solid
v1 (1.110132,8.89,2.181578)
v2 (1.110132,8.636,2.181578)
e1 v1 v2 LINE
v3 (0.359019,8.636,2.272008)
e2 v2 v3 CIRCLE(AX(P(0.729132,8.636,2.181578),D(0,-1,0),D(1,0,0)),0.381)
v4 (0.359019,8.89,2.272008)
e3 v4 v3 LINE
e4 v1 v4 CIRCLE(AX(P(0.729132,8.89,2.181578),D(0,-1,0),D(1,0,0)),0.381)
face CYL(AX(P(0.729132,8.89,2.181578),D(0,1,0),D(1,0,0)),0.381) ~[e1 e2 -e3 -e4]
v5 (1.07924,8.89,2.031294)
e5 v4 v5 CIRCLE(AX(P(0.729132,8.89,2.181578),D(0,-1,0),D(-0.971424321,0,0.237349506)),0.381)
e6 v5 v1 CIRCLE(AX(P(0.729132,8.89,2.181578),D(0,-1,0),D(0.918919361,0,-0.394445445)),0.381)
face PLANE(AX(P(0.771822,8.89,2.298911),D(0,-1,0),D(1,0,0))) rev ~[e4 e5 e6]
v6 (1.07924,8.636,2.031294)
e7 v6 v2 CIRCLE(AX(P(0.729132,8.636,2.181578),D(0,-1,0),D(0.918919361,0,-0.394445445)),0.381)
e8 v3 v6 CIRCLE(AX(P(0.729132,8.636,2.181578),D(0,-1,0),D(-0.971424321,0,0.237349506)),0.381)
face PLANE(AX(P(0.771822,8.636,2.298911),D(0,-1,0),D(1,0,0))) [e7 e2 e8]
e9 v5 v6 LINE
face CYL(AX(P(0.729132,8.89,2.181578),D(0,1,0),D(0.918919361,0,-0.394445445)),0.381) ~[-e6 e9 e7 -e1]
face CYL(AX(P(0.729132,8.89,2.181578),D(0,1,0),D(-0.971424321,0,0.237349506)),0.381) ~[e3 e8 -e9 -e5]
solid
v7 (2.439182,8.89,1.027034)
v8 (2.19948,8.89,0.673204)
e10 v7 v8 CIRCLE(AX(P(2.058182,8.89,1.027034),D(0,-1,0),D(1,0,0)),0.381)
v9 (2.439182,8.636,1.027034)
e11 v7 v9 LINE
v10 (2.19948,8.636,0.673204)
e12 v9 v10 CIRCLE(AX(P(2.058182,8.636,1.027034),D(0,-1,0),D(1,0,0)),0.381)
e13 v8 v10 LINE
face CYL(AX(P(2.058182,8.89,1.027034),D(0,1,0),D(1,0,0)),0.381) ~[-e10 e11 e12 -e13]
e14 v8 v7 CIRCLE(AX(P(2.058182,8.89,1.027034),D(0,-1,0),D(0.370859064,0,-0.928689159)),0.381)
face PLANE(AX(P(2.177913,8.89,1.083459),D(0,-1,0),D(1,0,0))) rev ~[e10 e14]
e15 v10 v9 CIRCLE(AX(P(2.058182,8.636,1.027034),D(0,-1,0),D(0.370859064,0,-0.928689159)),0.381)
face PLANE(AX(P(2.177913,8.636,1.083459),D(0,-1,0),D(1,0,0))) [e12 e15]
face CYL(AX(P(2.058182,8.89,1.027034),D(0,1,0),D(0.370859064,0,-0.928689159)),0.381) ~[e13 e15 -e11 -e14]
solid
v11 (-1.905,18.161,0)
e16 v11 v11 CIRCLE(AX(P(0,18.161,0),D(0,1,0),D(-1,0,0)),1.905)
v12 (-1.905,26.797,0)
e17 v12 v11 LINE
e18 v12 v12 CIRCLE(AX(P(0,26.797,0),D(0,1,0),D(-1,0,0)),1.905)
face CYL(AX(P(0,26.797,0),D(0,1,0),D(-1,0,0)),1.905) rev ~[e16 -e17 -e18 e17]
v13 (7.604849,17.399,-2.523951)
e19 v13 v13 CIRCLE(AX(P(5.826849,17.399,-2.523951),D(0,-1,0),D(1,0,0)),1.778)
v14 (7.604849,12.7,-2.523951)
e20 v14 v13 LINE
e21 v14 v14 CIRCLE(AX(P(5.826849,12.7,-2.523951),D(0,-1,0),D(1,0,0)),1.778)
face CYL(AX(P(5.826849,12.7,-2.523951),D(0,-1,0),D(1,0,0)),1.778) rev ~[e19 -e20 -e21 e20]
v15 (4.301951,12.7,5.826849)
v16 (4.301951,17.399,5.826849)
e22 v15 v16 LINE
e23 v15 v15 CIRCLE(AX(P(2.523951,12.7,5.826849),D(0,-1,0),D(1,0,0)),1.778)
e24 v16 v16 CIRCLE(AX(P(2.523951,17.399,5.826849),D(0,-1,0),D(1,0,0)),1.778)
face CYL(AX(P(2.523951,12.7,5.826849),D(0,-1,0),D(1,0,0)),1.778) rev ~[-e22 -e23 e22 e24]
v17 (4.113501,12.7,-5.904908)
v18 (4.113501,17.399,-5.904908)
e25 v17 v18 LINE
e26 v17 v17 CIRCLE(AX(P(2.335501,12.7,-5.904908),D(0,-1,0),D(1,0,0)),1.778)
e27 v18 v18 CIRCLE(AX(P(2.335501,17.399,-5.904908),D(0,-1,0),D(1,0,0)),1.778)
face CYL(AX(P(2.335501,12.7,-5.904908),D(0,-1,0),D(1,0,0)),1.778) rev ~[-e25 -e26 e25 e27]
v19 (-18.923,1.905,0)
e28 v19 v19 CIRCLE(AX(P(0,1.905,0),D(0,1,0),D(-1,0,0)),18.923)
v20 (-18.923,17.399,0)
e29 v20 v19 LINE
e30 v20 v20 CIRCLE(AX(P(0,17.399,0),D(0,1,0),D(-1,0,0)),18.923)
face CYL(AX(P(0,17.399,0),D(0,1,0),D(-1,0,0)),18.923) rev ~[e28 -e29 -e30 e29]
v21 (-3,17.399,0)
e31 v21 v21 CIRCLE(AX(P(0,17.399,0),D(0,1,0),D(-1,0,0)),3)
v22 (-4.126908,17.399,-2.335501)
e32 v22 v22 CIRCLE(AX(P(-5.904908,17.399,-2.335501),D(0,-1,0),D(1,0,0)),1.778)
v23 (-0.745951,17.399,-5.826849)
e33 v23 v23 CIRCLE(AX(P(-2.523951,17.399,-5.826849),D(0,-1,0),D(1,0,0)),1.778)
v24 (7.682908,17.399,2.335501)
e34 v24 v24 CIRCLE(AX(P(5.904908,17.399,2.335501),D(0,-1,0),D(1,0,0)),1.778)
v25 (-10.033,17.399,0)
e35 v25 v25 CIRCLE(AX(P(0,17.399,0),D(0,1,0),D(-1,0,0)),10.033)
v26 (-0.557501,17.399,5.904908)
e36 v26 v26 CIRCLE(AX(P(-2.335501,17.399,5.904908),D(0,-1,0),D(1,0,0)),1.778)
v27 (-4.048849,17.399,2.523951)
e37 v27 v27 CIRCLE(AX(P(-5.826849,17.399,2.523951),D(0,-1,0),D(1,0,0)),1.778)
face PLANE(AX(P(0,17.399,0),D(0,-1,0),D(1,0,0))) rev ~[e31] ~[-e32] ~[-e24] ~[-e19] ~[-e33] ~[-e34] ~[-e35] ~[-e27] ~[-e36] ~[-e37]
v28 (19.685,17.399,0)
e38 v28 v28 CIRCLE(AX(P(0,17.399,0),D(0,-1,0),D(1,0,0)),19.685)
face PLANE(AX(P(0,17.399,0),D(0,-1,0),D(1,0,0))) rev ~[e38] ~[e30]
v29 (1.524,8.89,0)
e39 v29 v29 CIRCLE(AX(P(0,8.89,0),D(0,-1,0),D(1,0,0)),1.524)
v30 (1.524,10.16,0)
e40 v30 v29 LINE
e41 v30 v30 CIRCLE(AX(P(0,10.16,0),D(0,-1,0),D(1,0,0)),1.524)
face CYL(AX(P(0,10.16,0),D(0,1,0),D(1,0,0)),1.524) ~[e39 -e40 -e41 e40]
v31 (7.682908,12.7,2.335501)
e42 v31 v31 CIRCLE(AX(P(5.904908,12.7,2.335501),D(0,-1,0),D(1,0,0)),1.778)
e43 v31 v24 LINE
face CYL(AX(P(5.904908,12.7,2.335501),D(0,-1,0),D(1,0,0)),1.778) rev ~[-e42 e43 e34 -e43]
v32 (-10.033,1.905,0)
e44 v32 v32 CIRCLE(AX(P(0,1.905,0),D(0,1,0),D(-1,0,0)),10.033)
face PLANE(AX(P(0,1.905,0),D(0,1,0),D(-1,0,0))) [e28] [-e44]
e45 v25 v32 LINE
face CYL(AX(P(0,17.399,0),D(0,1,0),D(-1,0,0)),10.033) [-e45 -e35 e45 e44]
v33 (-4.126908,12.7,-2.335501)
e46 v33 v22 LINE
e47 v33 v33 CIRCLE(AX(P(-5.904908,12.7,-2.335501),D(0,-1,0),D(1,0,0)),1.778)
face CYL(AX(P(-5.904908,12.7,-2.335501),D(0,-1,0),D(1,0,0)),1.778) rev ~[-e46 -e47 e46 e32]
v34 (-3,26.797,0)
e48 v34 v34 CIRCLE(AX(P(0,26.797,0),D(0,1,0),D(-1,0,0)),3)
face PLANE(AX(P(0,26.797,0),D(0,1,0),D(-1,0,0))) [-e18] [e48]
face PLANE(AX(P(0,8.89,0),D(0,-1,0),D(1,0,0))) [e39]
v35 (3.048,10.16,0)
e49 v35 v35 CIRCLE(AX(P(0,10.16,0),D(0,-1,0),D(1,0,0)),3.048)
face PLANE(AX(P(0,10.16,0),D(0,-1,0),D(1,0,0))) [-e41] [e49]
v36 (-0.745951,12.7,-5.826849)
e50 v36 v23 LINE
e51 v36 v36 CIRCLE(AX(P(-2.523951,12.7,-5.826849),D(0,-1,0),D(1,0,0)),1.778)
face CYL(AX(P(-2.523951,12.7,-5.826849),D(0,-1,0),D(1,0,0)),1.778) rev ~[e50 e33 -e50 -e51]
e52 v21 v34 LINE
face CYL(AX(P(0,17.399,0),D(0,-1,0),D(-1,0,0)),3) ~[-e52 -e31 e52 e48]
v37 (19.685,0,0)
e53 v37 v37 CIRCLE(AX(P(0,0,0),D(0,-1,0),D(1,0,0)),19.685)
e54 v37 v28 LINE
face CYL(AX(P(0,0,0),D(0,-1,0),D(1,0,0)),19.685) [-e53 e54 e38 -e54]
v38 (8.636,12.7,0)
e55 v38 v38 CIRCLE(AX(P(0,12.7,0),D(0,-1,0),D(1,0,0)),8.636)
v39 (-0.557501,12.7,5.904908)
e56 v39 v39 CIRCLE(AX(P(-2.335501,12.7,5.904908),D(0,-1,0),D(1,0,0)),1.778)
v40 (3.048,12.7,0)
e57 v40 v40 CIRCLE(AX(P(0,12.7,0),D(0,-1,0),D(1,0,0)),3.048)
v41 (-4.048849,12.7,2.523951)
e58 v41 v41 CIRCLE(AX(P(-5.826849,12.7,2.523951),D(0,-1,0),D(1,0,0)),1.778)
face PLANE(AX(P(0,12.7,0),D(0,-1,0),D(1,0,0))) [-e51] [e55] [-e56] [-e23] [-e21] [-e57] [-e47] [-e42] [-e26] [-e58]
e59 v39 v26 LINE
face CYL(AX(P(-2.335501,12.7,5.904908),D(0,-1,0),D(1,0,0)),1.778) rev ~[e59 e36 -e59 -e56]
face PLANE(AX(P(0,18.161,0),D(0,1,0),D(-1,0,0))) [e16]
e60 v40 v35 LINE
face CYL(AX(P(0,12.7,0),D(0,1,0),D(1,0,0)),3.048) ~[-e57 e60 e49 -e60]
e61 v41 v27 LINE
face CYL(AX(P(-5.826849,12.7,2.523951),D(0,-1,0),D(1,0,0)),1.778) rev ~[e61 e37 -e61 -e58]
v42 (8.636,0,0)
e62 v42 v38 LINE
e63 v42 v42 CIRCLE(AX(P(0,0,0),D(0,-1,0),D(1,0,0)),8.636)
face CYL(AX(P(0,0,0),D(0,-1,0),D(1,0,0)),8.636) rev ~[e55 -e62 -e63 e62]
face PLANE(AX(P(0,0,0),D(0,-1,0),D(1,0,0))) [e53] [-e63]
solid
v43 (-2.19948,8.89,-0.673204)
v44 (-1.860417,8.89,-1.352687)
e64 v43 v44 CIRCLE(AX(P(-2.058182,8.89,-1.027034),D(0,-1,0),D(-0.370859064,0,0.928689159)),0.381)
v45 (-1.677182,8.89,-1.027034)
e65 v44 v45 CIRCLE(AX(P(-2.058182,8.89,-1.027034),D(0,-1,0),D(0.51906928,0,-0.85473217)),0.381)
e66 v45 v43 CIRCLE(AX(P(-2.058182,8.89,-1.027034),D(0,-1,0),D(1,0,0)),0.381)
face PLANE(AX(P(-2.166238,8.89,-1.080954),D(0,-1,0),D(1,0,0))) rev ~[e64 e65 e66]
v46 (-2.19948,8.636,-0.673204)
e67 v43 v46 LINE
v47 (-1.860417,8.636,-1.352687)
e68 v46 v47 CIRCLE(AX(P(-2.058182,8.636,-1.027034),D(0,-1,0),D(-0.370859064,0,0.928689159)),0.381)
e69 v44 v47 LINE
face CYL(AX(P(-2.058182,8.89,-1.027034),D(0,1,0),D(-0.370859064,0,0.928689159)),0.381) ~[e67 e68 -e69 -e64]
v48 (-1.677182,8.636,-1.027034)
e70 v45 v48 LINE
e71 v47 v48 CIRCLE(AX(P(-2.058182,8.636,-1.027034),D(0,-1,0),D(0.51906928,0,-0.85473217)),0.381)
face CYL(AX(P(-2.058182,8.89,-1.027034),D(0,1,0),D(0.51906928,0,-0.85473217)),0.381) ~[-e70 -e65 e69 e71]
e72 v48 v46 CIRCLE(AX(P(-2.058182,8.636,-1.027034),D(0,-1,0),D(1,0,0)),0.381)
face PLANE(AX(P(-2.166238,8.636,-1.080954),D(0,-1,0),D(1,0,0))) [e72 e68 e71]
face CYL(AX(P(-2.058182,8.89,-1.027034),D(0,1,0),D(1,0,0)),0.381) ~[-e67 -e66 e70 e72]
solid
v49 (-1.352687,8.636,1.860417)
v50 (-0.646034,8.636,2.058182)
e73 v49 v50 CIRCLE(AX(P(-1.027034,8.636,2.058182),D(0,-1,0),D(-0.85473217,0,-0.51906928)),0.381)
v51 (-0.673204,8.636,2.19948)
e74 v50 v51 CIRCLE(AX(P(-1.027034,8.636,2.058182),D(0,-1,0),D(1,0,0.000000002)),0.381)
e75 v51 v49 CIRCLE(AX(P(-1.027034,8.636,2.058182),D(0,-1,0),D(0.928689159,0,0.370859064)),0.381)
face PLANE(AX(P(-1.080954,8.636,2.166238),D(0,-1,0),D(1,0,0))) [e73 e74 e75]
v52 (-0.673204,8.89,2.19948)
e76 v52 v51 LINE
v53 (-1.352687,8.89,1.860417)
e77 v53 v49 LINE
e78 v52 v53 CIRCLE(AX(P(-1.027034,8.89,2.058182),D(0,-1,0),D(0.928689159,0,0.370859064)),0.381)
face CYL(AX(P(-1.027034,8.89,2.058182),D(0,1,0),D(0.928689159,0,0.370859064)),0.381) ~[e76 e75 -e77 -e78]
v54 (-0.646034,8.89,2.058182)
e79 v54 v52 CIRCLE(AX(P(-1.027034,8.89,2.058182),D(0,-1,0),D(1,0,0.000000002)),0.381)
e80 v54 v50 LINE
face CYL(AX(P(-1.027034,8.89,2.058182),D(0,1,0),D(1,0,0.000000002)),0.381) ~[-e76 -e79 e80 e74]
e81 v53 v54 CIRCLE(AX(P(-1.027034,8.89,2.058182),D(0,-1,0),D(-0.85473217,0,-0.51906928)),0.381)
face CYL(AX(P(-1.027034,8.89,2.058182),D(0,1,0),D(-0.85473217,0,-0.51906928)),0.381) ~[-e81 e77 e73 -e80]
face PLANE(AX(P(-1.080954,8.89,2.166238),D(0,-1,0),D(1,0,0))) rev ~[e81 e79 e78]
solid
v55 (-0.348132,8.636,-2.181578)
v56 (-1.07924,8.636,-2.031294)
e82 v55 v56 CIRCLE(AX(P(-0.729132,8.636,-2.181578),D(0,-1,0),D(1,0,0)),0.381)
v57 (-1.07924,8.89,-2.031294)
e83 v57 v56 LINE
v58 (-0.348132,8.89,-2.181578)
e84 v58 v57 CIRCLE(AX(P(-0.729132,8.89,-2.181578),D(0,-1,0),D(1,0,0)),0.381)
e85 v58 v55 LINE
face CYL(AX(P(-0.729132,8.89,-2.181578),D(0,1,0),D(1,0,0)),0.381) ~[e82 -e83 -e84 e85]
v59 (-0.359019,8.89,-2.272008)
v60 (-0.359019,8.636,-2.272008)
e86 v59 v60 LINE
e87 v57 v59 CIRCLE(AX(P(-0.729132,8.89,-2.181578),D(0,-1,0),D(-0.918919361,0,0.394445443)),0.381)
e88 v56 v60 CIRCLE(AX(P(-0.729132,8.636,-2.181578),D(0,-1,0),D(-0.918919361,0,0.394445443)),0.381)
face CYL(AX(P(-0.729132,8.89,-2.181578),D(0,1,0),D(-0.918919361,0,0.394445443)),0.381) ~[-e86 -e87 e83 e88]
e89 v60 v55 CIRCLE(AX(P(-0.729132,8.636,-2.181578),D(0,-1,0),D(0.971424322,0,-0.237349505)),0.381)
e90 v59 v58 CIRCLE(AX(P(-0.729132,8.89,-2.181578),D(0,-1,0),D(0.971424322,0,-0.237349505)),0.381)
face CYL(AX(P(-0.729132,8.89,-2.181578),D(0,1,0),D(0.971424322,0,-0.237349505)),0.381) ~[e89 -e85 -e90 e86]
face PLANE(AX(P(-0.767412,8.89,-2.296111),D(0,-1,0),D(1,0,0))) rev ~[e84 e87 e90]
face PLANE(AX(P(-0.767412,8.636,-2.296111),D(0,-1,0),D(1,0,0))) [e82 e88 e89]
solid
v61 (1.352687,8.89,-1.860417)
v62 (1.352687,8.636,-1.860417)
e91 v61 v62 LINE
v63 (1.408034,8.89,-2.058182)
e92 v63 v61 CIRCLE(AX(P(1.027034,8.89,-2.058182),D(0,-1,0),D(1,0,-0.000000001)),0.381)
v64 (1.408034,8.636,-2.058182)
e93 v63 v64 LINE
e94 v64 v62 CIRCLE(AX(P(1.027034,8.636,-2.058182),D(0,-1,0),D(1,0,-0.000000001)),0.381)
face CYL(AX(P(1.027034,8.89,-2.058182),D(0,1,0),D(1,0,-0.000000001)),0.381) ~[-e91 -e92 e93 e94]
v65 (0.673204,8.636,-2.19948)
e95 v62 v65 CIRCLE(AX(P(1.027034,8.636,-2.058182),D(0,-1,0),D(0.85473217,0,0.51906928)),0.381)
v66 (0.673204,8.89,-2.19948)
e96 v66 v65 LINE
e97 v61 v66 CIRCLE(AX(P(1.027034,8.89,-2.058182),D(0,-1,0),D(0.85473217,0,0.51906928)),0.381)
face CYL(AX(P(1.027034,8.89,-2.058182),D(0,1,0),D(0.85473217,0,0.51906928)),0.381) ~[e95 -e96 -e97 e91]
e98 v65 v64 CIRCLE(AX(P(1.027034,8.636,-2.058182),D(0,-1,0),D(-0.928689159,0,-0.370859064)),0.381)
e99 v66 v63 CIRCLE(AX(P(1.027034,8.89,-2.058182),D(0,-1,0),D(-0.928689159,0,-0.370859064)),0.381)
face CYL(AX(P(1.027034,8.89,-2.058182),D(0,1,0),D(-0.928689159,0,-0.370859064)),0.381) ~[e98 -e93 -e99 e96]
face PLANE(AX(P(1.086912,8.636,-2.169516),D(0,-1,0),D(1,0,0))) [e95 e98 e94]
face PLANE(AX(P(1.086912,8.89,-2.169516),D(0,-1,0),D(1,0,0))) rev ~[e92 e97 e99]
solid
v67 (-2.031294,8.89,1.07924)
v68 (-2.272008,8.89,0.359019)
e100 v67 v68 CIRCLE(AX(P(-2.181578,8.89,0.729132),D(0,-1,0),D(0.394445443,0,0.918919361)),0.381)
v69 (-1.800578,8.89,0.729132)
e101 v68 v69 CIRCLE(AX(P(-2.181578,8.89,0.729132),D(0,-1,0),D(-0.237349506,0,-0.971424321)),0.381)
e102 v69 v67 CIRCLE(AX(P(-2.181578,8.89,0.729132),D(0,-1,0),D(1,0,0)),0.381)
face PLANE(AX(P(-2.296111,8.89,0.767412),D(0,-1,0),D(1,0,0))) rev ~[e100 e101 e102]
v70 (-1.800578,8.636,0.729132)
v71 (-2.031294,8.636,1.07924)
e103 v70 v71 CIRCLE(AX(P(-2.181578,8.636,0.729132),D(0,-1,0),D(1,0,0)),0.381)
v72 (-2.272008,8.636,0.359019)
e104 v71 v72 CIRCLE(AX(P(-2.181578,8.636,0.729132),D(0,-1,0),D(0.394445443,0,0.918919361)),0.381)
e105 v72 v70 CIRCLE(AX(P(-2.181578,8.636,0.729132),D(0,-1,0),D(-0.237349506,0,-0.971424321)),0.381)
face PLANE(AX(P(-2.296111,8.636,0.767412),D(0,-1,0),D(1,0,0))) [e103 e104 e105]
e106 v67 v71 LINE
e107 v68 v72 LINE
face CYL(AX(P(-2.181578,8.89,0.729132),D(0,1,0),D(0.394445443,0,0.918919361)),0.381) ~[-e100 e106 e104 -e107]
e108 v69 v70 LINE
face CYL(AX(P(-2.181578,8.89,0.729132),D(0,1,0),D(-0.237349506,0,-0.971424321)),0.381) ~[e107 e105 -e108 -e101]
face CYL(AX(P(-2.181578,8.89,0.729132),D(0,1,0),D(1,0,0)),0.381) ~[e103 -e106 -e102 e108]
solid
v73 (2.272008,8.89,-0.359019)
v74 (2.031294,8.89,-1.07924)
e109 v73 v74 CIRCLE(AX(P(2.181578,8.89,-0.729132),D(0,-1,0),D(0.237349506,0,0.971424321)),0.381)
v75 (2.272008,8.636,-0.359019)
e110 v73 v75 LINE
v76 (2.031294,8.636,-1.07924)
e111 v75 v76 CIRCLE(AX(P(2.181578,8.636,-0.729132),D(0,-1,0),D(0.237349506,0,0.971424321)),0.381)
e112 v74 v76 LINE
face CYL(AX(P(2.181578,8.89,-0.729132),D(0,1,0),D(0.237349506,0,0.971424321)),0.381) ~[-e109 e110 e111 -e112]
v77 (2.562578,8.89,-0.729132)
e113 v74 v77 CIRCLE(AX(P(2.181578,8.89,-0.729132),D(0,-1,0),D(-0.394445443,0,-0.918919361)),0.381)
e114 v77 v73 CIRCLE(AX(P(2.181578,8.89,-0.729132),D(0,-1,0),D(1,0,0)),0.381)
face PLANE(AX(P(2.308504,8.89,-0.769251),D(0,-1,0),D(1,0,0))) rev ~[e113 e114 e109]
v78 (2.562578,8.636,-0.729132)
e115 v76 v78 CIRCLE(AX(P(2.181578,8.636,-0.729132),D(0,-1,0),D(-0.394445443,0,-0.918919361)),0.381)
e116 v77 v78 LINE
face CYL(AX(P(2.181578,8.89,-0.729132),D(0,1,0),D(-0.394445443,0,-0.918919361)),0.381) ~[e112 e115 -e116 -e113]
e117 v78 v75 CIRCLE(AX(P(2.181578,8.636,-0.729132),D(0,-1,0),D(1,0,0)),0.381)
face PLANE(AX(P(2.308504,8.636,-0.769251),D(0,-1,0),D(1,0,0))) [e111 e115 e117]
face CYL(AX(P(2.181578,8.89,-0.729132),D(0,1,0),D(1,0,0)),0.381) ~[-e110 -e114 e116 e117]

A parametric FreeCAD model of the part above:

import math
import FreeCAD as App
import Part
import Sketcher
from FreeCAD import Vector
Q = App.Units.Quantity

doc = App.newDocument("Part")
body = doc.addObject("PartDesign::Body", "Body")

# Sketch on XZ plane
sketch1 = body.newObject("Sketcher::SketchObject", "Sketch")
sketch1.AttachmentSupport = (doc.getObject("XZ_Plane"), [""])
sketch1.MapMode = "FlatFace"
sketch1.addGeometry(Part.Circle(Vector(0, 0, 0), Vector(0, 0, 1), 19.685), False)
sketch1.addConstraint(Sketcher.Constraint("Coincident", 0, 3, -1, 1))
sketch1.addConstraint(Sketcher.Constraint("Diameter", 0, Q("1.55 in")))
pad1 = body.newObject("PartDesign::Pad", "Pad")
pad1.Profile = sketch1
pad1.Length = Q("0.685 in")
pad1.Reversed = True

# Sketch on XZ plane
sketch2 = body.newObject("Sketcher::SketchObject", "Sketch001")
sketch2.AttachmentSupport = (doc.getObject("XZ_Plane"), [""])
sketch2.MapMode = "FlatFace"
sketch2.addGeometry(Part.Circle(Vector(0, 0, 0), Vector(0, 0, 1), 7.62), False)
sketch2.addConstraint(Sketcher.Constraint("Coincident", 0, 3, -1, 1))
sketch2.addConstraint(Sketcher.Constraint("Diameter", 0, Q("0.6 in")))
pocket1 = body.newObject("PartDesign::Pocket", "Pocket")
pocket1.Profile = sketch2
pocket1.Length = Q("0.52 in")

# Sketch on XZ plane
sketch3 = body.newObject("Sketcher::SketchObject", "Sketch002")
sketch3.AttachmentSupport = (doc.getObject("XZ_Plane"), [""])
sketch3.MapMode = "FlatFace"
sketch3.addGeometry(Part.Circle(Vector(0, 0, 0), Vector(0, 0, 1), 19.685), False)
sketch3.addConstraint(Sketcher.Constraint("Coincident", 0, 3, -1, 1))
sketch3.addConstraint(Sketcher.Constraint("Diameter", 0, Q("1.55 in")))
pad2 = body.newObject("PartDesign::Pad", "Pad001")
pad2.Profile = sketch3
pad2.Length = Q("0.65 in")
pad2.Reversed = True

# Sketch on XZ plane
sketch4 = body.newObject("Sketcher::SketchObject", "Sketch003")
sketch4.AttachmentSupport = (doc.getObject("XZ_Plane"), [""])
sketch4.MapMode = "FlatFace"
sketch4.addGeometry(Part.Circle(Vector(0, 0, 0), Vector(0, 0, 1), 8.636), False)
sketch4.addConstraint(Sketcher.Constraint("Coincident", 0, 3, -1, 1))
sketch4.addConstraint(Sketcher.Constraint("Diameter", 0, Q("0.68 in")))
pocket2 = body.newObject("PartDesign::Pocket", "Pocket001")
pocket2.Profile = sketch4
pocket2.Length = Q("0.5 in")

# Sketch on XZ plane
sketch5 = body.newObject("Sketcher::SketchObject", "Sketch004")
sketch5.AttachmentSupport = (doc.getObject("XZ_Plane"), [""])
sketch5.MapMode = "FlatFace"
sketch5.AttachmentOffset = App.Placement(Vector(0, 0, -0.5 * 25.4), App.Rotation())
sketch5.addGeometry(Part.Circle(Vector(0, 0, 0), Vector(0, 0, 1), 3.048), False)
sketch5.addConstraint(Sketcher.Constraint("Coincident", 0, 3, -1, 1))
sketch5.addConstraint(Sketcher.Constraint("Diameter", 0, Q("0.24 in")))
pad3 = body.newObject("PartDesign::Pad", "Pad002")
pad3.Profile = sketch5
pad3.Length = Q("0.1 in")

# Sketch on XZ plane
sketch6 = body.newObject("Sketcher::SketchObject", "Sketch005")
sketch6.AttachmentSupport = (doc.getObject("XZ_Plane"), [""])
sketch6.MapMode = "FlatFace"
sketch6.AttachmentOffset = App.Placement(Vector(0, 0, -0.4 * 25.4), App.Rotation())
sketch6.addGeometry(Part.Circle(Vector(0, 0, 0), Vector(0, 0, 1), 1.524), False)
sketch6.addConstraint(Sketcher.Constraint("Coincident", 0, 3, -1, 1))
sketch6.addConstraint(Sketcher.Constraint("Diameter", 0, Q("0.12 in")))
pad4 = body.newObject("PartDesign::Pad", "Pad003")
pad4.Profile = sketch6
pad4.Length = Q("0.05 in")

# Sketch on XZ plane
sketch7 = body.newObject("Sketcher::SketchObject", "Sketch006")
sketch7.AttachmentSupport = (doc.getObject("XZ_Plane"), [""])
sketch7.MapMode = "FlatFace"
sketch7.AttachmentOffset = App.Placement(Vector(0, 0, -0.5 * 25.4), App.Rotation())
sketch7.addGeometry(Part.Circle(Vector(-2.335501, 5.904908, 0), Vector(0, 0, 1), 1.778), False)
sketch7.addGeometry(Part.Circle(Vector(-5.826849, 2.523951, 0), Vector(0, 0, 1), 1.778), False)
sketch7.addGeometry(Part.Circle(Vector(-5.904908, -2.335501, 0), Vector(0, 0, 1), 1.778), False)
sketch7.addGeometry(Part.Circle(Vector(-2.523951, -5.826849, 0), Vector(0, 0, 1), 1.778), False)
sketch7.addGeometry(Part.Circle(Vector(2.335501, -5.904908, 0), Vector(0, 0, 1), 1.778), False)
sketch7.addGeometry(Part.Circle(Vector(5.826849, -2.523951, 0), Vector(0, 0, 1), 1.778), False)
sketch7.addGeometry(Part.Circle(Vector(5.904908, 2.335501, 0), Vector(0, 0, 1), 1.778), False)
sketch7.addGeometry(Part.Circle(Vector(2.523951, 5.826849, 0), Vector(0, 0, 1), 1.778), False)
sketch7.addConstraint(Sketcher.Constraint("Equal", 0, 1))
sketch7.addConstraint(Sketcher.Constraint("Equal", 1, 2))
sketch7.addConstraint(Sketcher.Constraint("Equal", 2, 3))
sketch7.addConstraint(Sketcher.Constraint("Equal", 3, 4))
sketch7.addConstraint(Sketcher.Constraint("Equal", 4, 5))
sketch7.addConstraint(Sketcher.Constraint("Equal", 5, 6))
sketch7.addConstraint(Sketcher.Constraint("Equal", 6, 7))
sketch7.addConstraint(Sketcher.Constraint("Symmetric", 0, 3, 4, 3, -1, 1))
sketch7.addConstraint(Sketcher.Constraint("Symmetric", 1, 3, 5, 3, -1, 1))
sketch7.addConstraint(Sketcher.Constraint("Symmetric", 2, 3, 6, 3, -1, 1))
sketch7.addConstraint(Sketcher.Constraint("Symmetric", 3, 3, 7, 3, -1, 1))
sketch7.addConstraint(Sketcher.Constraint("Diameter", 0, Q("0.14 in")))
sketch7.addConstraint(Sketcher.Constraint("DistanceX", 0, 3, -1, 1, 2.335501))
sketch7.addConstraint(Sketcher.Constraint("DistanceY", 2, 3, -1, 1, 2.335501))
sketch7.addConstraint(Sketcher.Constraint("DistanceY", 3, 3, 1, 3, 8.3508))
sketch7.addConstraint(Sketcher.Constraint("DistanceX", 3, 3, 5, 3, 8.3508))
sketch7.addConstraint(Sketcher.Constraint("DistanceX", 1, 3, 5, 3, 11.653698))
sketch7.addConstraint(Sketcher.Constraint("DistanceY", -1, 1, 1, 3, 2.523951))
sketch7.addConstraint(Sketcher.Constraint("DistanceX", 2, 3, 1, 3, 0.078058))
sketch7.addConstraint(Sketcher.Constraint("DistanceY", 2, 3, 0, 3, 8.240409))
pocket3 = body.newObject("PartDesign::Pocket", "Pocket002")
pocket3.Profile = sketch7
pocket3.Length = Q("1 in")

# Sketch on XZ plane
sketch8 = body.newObject("Sketcher::SketchObject", "Sketch007")
sketch8.AttachmentSupport = (doc.getObject("XZ_Plane"), [""])
sketch8.MapMode = "FlatFace"
sketch8.AttachmentOffset = App.Placement(Vector(0, 0, -0.685 * 25.4), App.Rotation())
sketch8.addGeometry(Part.Circle(Vector(0, 0, 0), Vector(0, 0, 1), 18.923), False)
sketch8.addGeometry(Part.Circle(Vector(0, 0, 0), Vector(0, 0, 1), 10.033), False)
sketch8.addConstraint(Sketcher.Constraint("Coincident", 0, 3, -1, 1))
sketch8.addConstraint(Sketcher.Constraint("Coincident", 1, 3, -1, 1))
sketch8.addConstraint(Sketcher.Constraint("Diameter", 0, Q("1.49 in")))
sketch8.addConstraint(Sketcher.Constraint("Diameter", 1, Q("0.79 in")))
pocket4 = body.newObject("PartDesign::Pocket", "Pocket003")
pocket4.Profile = sketch8
pocket4.Length = Q("0.61 in")
pocket4.Reversed = True

# Sketch on XZ plane
sketch9 = body.newObject("Sketcher::SketchObject", "Sketch008")
sketch9.AttachmentSupport = (doc.getObject("XZ_Plane"), [""])
sketch9.MapMode = "FlatFace"
sketch9.AttachmentOffset = App.Placement(Vector(0, 0, -0.685 * 25.4), App.Rotation())
sketch9.addGeometry(Part.Circle(Vector(0, 0, 0), Vector(0, 0, 1), 3), False)
sketch9.addConstraint(Sketcher.Constraint("Coincident", 0, 3, -1, 1))
sketch9.addConstraint(Sketcher.Constraint("Diameter", 0, 6.0))
pad5 = body.newObject("PartDesign::Pad", "Pad004")
pad5.Profile = sketch9
pad5.Length = Q("0.37 in")
pad5.Reversed = True

# Sketch on XZ plane
sketch10 = body.newObject("Sketcher::SketchObject", "Sketch009")
sketch10.AttachmentSupport = (doc.getObject("XZ_Plane"), [""])
sketch10.MapMode = "FlatFace"
sketch10.AttachmentOffset = App.Placement(Vector(0, 0, -1.055 * 25.4), App.Rotation())
sketch10.addGeometry(Part.Circle(Vector(0, 0, 0), Vector(0, 0, 1), 1.905), False)
sketch10.addConstraint(Sketcher.Constraint("Coincident", 0, 3, -1, 1))
sketch10.addConstraint(Sketcher.Constraint("Diameter", 0, Q("0.15 in")))
pocket5 = body.newObject("PartDesign::Pocket", "Pocket004")
pocket5.Profile = sketch10
pocket5.Length = Q("0.34 in")
pocket5.Reversed = True
body2 = doc.addObject("PartDesign::Body", "Body001")

# Sketch on XZ plane
sketch11 = body2.newObject("Sketcher::SketchObject", "Sketch010")
sketch11.AttachmentSupport = (doc.getObject("XZ_Plane001"), [""])
sketch11.MapMode = "FlatFace"
sketch11.AttachmentOffset = App.Placement(Vector(0, 0, -0.35 * 25.4), App.Rotation())
sketch11.addGeometry(Part.ArcOfCircle(Part.Circle(Vector(2.058182, 1.027034, 0), Vector(0, 0, 1), 0.381), math.radians(-68.231392), math.radians(0)), False)
sketch11.addGeometry(Part.ArcOfCircle(Part.Circle(Vector(2.058182, 1.027034, 0), Vector(0, 0, 1), 0.381), math.radians(0), math.radians(291.768608)), False)
sketch11.addConstraint(Sketcher.Constraint("Tangent", 0, 1, 1, 2))
sketch11.addConstraint(Sketcher.Constraint("Coincident", 1, 1, 0, 2))
sketch11.addConstraint(Sketcher.Constraint("Horizontal", 0, 3, 1, 1))
sketch11.addConstraint(Sketcher.Constraint("Radius", 0, Q("0.015 in")))
sketch11.addConstraint(Sketcher.Constraint("DistanceX", -1, 1, 0, 1, 2.19948))
sketch11.addConstraint(Sketcher.Constraint("DistanceY", 0, 1, 0, 3, 0.353831))
sketch11.addConstraint(Sketcher.Constraint("DistanceY", -1, 1, 0, 3, 1.027034))
pad6 = body2.newObject("PartDesign::Pad", "Pad005")
pad6.Profile = sketch11
pad6.Length = Q("0.01 in")
body3 = doc.addObject("PartDesign::Body", "Body002")

# Sketch on XZ plane
sketch12 = body3.newObject("Sketcher::SketchObject", "Sketch011")
sketch12.AttachmentSupport = (doc.getObject("XZ_Plane002"), [""])
sketch12.MapMode = "FlatFace"
sketch12.AttachmentOffset = App.Placement(Vector(0, 0, -0.35 * 25.4), App.Rotation())
sketch12.addGeometry(Part.ArcOfCircle(Part.Circle(Vector(0.729132, 2.181578, 0), Vector(0, 0, 1), 0.381), math.radians(-23.231392), math.radians(0)), False)
sketch12.addGeometry(Part.ArcOfCircle(Part.Circle(Vector(0.729132, 2.181578, 0), Vector(0, 0, 1), 0.381), math.radians(0), math.radians(166.269841)), False)
sketch12.addGeometry(Part.ArcOfCircle(Part.Circle(Vector(0.729132, 2.181578, 0), Vector(0, 0, 1), 0.381), math.radians(166.269841), math.radians(336.768608)), False)
sketch12.addConstraint(Sketcher.Constraint("Tangent", 0, 2, 1, 1))
sketch12.addConstraint(Sketcher.Constraint("Tangent", 1, 2, 2, 1))
sketch12.addConstraint(Sketcher.Constraint("Tangent", 2, 2, 0, 1))
sketch12.addConstraint(Sketcher.Constraint("Horizontal", 2, 3, 0, 2))
sketch12.addConstraint(Sketcher.Constraint("Radius", 0, Q("0.015 in")))
sketch12.addConstraint(Sketcher.Constraint("DistanceX", -1, 1, 0, 3, 0.729132))
sketch12.addConstraint(Sketcher.Constraint("DistanceX", -1, 1, 1, 2, 0.359019))
sketch12.addConstraint(Sketcher.Constraint("DistanceX", -1, 1, 2, 2, 1.07924))
sketch12.addConstraint(Sketcher.Constraint("DistanceY", -1, 1, 0, 3, 2.181578))
pad7 = body3.newObject("PartDesign::Pad", "Pad006")
pad7.Profile = sketch12
pad7.Length = Q("0.01 in")
body4 = doc.addObject("PartDesign::Body", "Body003")

# Sketch on XZ plane
sketch13 = body4.newObject("Sketcher::SketchObject", "Sketch012")
sketch13.AttachmentSupport = (doc.getObject("XZ_Plane003"), [""])
sketch13.MapMode = "FlatFace"
sketch13.AttachmentOffset = App.Placement(Vector(0, 0, -0.35 * 25.4), App.Rotation())
sketch13.addGeometry(Part.ArcOfCircle(Part.Circle(Vector(-1.027034, 2.058182, 0), Vector(0, 0, 1), 0.381), math.radians(21.768608), math.radians(211.269841)), False)
sketch13.addGeometry(Part.ArcOfCircle(Part.Circle(Vector(-1.027034, 2.058182, 0), Vector(0, 0, 1), 0.381), math.radians(-148.730159), math.radians(0)), False)
sketch13.addGeometry(Part.ArcOfCircle(Part.Circle(Vector(-1.027034, 2.058182, 0), Vector(0, 0, 1), 0.381), math.radians(0), math.radians(21.768608)), False)
sketch13.addConstraint(Sketcher.Constraint("Tangent", 0, 2, 1, 1))
sketch13.addConstraint(Sketcher.Constraint("Tangent", 1, 2, 2, 1))
sketch13.addConstraint(Sketcher.Constraint("Tangent", 2, 2, 0, 1))
sketch13.addConstraint(Sketcher.Constraint("Horizontal", 2, 3, 1, 2))
sketch13.addConstraint(Sketcher.Constraint("Radius", 0, Q("0.015 in")))
sketch13.addConstraint(Sketcher.Constraint("DistanceY", -1, 1, 2, 2, 2.19948))
sketch13.addConstraint(Sketcher.Constraint("DistanceX", 2, 2, 1, 2, 0.027169))
sketch13.addConstraint(Sketcher.Constraint("DistanceX", 0, 3, -1, 1, 1.027034))
sketch13.addConstraint(Sketcher.Constraint("DistanceX", 0, 2, -1, 1, 1.352687))
pad8 = body4.newObject("PartDesign::Pad", "Pad007")
pad8.Profile = sketch13
pad8.Length = Q("0.01 in")
body5 = doc.addObject("PartDesign::Body", "Body004")

# Sketch on XZ plane
sketch14 = body5.newObject("Sketcher::SketchObject", "Sketch013")
sketch14.AttachmentSupport = (doc.getObject("XZ_Plane004"), [""])
sketch14.MapMode = "FlatFace"
sketch14.AttachmentOffset = App.Placement(Vector(0, 0, -0.35 * 25.4), App.Rotation())
sketch14.addGeometry(Part.ArcOfCircle(Part.Circle(Vector(-2.181578, 0.729132, 0), Vector(0, 0, 1), 0.381), math.radians(66.768608), math.radians(256.269841)), False)
sketch14.addGeometry(Part.ArcOfCircle(Part.Circle(Vector(-2.181578, 0.729132, 0), Vector(0, 0, 1), 0.381), math.radians(-103.730159), math.radians(0)), False)
sketch14.addGeometry(Part.ArcOfCircle(Part.Circle(Vector(-2.181578, 0.729132, 0), Vector(0, 0, 1), 0.381), math.radians(0), math.radians(66.768608)), False)
sketch14.addConstraint(Sketcher.Constraint("Tangent", 0, 2, 1, 1))
sketch14.addConstraint(Sketcher.Constraint("Tangent", 1, 2, 2, 1))
sketch14.addConstraint(Sketcher.Constraint("Tangent", 2, 2, 0, 1))
sketch14.addConstraint(Sketcher.Constraint("Horizontal", 2, 3, 1, 2))
sketch14.addConstraint(Sketcher.Constraint("Radius", 0, Q("0.015 in")))
sketch14.addConstraint(Sketcher.Constraint("DistanceY", -1, 1, 0, 3, 0.729132))
sketch14.addConstraint(Sketcher.Constraint("DistanceY", -1, 1, 0, 2, 0.359019))
sketch14.addConstraint(Sketcher.Constraint("DistanceY", -1, 1, 2, 2, 1.07924))
sketch14.addConstraint(Sketcher.Constraint("DistanceX", 0, 3, -1, 1, 2.181578))
pad9 = body5.newObject("PartDesign::Pad", "Pad008")
pad9.Profile = sketch14
pad9.Length = Q("0.01 in")
body6 = doc.addObject("PartDesign::Body", "Body005")

# Sketch on XZ plane
sketch15 = body6.newObject("Sketcher::SketchObject", "Sketch014")
sketch15.AttachmentSupport = (doc.getObject("XZ_Plane005"), [""])
sketch15.MapMode = "FlatFace"
sketch15.AttachmentOffset = App.Placement(Vector(0, 0, -0.35 * 25.4), App.Rotation())
sketch15.addGeometry(Part.ArcOfCircle(Part.Circle(Vector(-2.058182, -1.027034, 0), Vector(0, 0, 1), 0.381), math.radians(111.768608), math.radians(301.269841)), False)
sketch15.addGeometry(Part.ArcOfCircle(Part.Circle(Vector(-2.058182, -1.027034, 0), Vector(0, 0, 1), 0.381), math.radians(-58.730159), math.radians(0)), False)
sketch15.addGeometry(Part.ArcOfCircle(Part.Circle(Vector(-2.058182, -1.027034, 0), Vector(0, 0, 1), 0.381), math.radians(0), math.radians(111.768608)), False)
sketch15.addConstraint(Sketcher.Constraint("Tangent", 0, 2, 1, 1))
sketch15.addConstraint(Sketcher.Constraint("Tangent", 1, 2, 2, 1))
sketch15.addConstraint(Sketcher.Constraint("Tangent", 2, 2, 0, 1))
sketch15.addConstraint(Sketcher.Constraint("Horizontal", 2, 3, 1, 2))
sketch15.addConstraint(Sketcher.Constraint("Radius", 0, Q("0.015 in")))
sketch15.addConstraint(Sketcher.Constraint("DistanceX", 2, 2, -1, 1, 2.19948))
sketch15.addConstraint(Sketcher.Constraint("DistanceY", 0, 3, 2, 2, 0.353831))
sketch15.addConstraint(Sketcher.Constraint("DistanceY", 0, 3, -1, 1, 1.027034))
sketch15.addConstraint(Sketcher.Constraint("DistanceX", 0, 2, -1, 1, 1.860417))
pad10 = body6.newObject("PartDesign::Pad", "Pad009")
pad10.Profile = sketch15
pad10.Length = Q("0.01 in")
body7 = doc.addObject("PartDesign::Body", "Body006")

# Sketch on XZ plane
sketch16 = body7.newObject("Sketcher::SketchObject", "Sketch015")
sketch16.AttachmentSupport = (doc.getObject("XZ_Plane006"), [""])
sketch16.MapMode = "FlatFace"
sketch16.AttachmentOffset = App.Placement(Vector(0, 0, -0.35 * 25.4), App.Rotation())
sketch16.addGeometry(Part.ArcOfCircle(Part.Circle(Vector(-0.729132, -2.181578, 0), Vector(0, 0, 1), 0.381), math.radians(156.768608), math.radians(346.269841)), False)
sketch16.addGeometry(Part.ArcOfCircle(Part.Circle(Vector(-0.729132, -2.181578, 0), Vector(0, 0, 1), 0.381), math.radians(-13.730159), math.radians(0)), False)
sketch16.addGeometry(Part.ArcOfCircle(Part.Circle(Vector(-0.729132, -2.181578, 0), Vector(0, 0, 1), 0.381), math.radians(0), math.radians(156.768608)), False)
sketch16.addConstraint(Sketcher.Constraint("Tangent", 0, 2, 1, 1))
sketch16.addConstraint(Sketcher.Constraint("Tangent", 1, 2, 2, 1))
sketch16.addConstraint(Sketcher.Constraint("Tangent", 2, 2, 0, 1))
sketch16.addConstraint(Sketcher.Constraint("Horizontal", 2, 3, 1, 2))
sketch16.addConstraint(Sketcher.Constraint("Radius", 0, Q("0.015 in")))
sketch16.addConstraint(Sketcher.Constraint("DistanceX", 0, 3, -1, 1, 0.729132))
sketch16.addConstraint(Sketcher.Constraint("DistanceX", 0, 2, -1, 1, 0.359019))
sketch16.addConstraint(Sketcher.Constraint("DistanceX", 2, 2, -1, 1, 1.07924))
sketch16.addConstraint(Sketcher.Constraint("DistanceY", 0, 3, -1, 1, 2.181578))
pad11 = body7.newObject("PartDesign::Pad", "Pad010")
pad11.Profile = sketch16
pad11.Length = Q("0.01 in")
body8 = doc.addObject("PartDesign::Body", "Body007")

# Sketch on XZ plane
sketch17 = body8.newObject("Sketcher::SketchObject", "Sketch016")
sketch17.AttachmentSupport = (doc.getObject("XZ_Plane007"), [""])
sketch17.MapMode = "FlatFace"
sketch17.AttachmentOffset = App.Placement(Vector(0, 0, -0.35 * 25.4), App.Rotation())
sketch17.addGeometry(Part.ArcOfCircle(Part.Circle(Vector(1.027034, -2.058182, 0), Vector(0, 0, 1), 0.381), math.radians(0), math.radians(31.269841)), False)
sketch17.addGeometry(Part.ArcOfCircle(Part.Circle(Vector(1.027034, -2.058182, 0), Vector(0, 0, 1), 0.381), math.radians(31.269841), math.radians(201.768608)), False)
sketch17.addGeometry(Part.ArcOfCircle(Part.Circle(Vector(1.027034, -2.058182, 0), Vector(0, 0, 1), 0.381), math.radians(-158.231392), math.radians(0)), False)
sketch17.addConstraint(Sketcher.Constraint("Tangent", 0, 2, 1, 1))
sketch17.addConstraint(Sketcher.Constraint("Tangent", 1, 2, 2, 1))
sketch17.addConstraint(Sketcher.Constraint("Tangent", 2, 2, 0, 1))
sketch17.addConstraint(Sketcher.Constraint("Horizontal", 1, 3, 2, 2))
sketch17.addConstraint(Sketcher.Constraint("Radius", 0, Q("0.015 in")))
sketch17.addConstraint(Sketcher.Constraint("DistanceY", 1, 2, -1, 1, 2.19948))
sketch17.addConstraint(Sketcher.Constraint("DistanceX", 1, 2, 0, 3, 0.353831))
sketch17.addConstraint(Sketcher.Constraint("DistanceX", -1, 1, 0, 3, 1.027034))
sketch17.addConstraint(Sketcher.Constraint("DistanceX", -1, 1, 0, 2, 1.352687))
pad12 = body8.newObject("PartDesign::Pad", "Pad011")
pad12.Profile = sketch17
pad12.Length = Q("0.01 in")
body9 = doc.addObject("PartDesign::Body", "Body008")

# Sketch on XZ plane
sketch18 = body9.newObject("Sketcher::SketchObject", "Sketch017")
sketch18.AttachmentSupport = (doc.getObject("XZ_Plane008"), [""])
sketch18.MapMode = "FlatFace"
sketch18.AttachmentOffset = App.Placement(Vector(0, 0, -0.35 * 25.4), App.Rotation())
sketch18.addGeometry(Part.ArcOfCircle(Part.Circle(Vector(2.181578, -0.729132, 0), Vector(0, 0, 1), 0.381), math.radians(0), math.radians(76.269841)), False)
sketch18.addGeometry(Part.ArcOfCircle(Part.Circle(Vector(2.181578, -0.729132, 0), Vector(0, 0, 1), 0.381), math.radians(76.269841), math.radians(246.768608)), False)
sketch18.addGeometry(Part.ArcOfCircle(Part.Circle(Vector(2.181578, -0.729132, 0), Vector(0, 0, 1), 0.381), math.radians(-113.231392), math.radians(0)), False)
sketch18.addConstraint(Sketcher.Constraint("Tangent", 0, 2, 1, 1))
sketch18.addConstraint(Sketcher.Constraint("Tangent", 1, 2, 2, 1))
sketch18.addConstraint(Sketcher.Constraint("Tangent", 2, 2, 0, 1))
sketch18.addConstraint(Sketcher.Constraint("Horizontal", 1, 3, 2, 2))
sketch18.addConstraint(Sketcher.Constraint("Radius", 0, Q("0.015 in")))
sketch18.addConstraint(Sketcher.Constraint("DistanceY", 0, 3, -1, 1, 0.729132))
sketch18.addConstraint(Sketcher.Constraint("DistanceY", 0, 2, -1, 1, 0.359019))
sketch18.addConstraint(Sketcher.Constraint("DistanceY", 1, 2, -1, 1, 1.07924))
sketch18.addConstraint(Sketcher.Constraint("DistanceX", -1, 1, 0, 3, 2.181578))
pad13 = body9.newObject("PartDesign::Pad", "Pad012")
pad13.Profile = sketch18
pad13.Length = Q("0.01 in")

doc.recompute()
